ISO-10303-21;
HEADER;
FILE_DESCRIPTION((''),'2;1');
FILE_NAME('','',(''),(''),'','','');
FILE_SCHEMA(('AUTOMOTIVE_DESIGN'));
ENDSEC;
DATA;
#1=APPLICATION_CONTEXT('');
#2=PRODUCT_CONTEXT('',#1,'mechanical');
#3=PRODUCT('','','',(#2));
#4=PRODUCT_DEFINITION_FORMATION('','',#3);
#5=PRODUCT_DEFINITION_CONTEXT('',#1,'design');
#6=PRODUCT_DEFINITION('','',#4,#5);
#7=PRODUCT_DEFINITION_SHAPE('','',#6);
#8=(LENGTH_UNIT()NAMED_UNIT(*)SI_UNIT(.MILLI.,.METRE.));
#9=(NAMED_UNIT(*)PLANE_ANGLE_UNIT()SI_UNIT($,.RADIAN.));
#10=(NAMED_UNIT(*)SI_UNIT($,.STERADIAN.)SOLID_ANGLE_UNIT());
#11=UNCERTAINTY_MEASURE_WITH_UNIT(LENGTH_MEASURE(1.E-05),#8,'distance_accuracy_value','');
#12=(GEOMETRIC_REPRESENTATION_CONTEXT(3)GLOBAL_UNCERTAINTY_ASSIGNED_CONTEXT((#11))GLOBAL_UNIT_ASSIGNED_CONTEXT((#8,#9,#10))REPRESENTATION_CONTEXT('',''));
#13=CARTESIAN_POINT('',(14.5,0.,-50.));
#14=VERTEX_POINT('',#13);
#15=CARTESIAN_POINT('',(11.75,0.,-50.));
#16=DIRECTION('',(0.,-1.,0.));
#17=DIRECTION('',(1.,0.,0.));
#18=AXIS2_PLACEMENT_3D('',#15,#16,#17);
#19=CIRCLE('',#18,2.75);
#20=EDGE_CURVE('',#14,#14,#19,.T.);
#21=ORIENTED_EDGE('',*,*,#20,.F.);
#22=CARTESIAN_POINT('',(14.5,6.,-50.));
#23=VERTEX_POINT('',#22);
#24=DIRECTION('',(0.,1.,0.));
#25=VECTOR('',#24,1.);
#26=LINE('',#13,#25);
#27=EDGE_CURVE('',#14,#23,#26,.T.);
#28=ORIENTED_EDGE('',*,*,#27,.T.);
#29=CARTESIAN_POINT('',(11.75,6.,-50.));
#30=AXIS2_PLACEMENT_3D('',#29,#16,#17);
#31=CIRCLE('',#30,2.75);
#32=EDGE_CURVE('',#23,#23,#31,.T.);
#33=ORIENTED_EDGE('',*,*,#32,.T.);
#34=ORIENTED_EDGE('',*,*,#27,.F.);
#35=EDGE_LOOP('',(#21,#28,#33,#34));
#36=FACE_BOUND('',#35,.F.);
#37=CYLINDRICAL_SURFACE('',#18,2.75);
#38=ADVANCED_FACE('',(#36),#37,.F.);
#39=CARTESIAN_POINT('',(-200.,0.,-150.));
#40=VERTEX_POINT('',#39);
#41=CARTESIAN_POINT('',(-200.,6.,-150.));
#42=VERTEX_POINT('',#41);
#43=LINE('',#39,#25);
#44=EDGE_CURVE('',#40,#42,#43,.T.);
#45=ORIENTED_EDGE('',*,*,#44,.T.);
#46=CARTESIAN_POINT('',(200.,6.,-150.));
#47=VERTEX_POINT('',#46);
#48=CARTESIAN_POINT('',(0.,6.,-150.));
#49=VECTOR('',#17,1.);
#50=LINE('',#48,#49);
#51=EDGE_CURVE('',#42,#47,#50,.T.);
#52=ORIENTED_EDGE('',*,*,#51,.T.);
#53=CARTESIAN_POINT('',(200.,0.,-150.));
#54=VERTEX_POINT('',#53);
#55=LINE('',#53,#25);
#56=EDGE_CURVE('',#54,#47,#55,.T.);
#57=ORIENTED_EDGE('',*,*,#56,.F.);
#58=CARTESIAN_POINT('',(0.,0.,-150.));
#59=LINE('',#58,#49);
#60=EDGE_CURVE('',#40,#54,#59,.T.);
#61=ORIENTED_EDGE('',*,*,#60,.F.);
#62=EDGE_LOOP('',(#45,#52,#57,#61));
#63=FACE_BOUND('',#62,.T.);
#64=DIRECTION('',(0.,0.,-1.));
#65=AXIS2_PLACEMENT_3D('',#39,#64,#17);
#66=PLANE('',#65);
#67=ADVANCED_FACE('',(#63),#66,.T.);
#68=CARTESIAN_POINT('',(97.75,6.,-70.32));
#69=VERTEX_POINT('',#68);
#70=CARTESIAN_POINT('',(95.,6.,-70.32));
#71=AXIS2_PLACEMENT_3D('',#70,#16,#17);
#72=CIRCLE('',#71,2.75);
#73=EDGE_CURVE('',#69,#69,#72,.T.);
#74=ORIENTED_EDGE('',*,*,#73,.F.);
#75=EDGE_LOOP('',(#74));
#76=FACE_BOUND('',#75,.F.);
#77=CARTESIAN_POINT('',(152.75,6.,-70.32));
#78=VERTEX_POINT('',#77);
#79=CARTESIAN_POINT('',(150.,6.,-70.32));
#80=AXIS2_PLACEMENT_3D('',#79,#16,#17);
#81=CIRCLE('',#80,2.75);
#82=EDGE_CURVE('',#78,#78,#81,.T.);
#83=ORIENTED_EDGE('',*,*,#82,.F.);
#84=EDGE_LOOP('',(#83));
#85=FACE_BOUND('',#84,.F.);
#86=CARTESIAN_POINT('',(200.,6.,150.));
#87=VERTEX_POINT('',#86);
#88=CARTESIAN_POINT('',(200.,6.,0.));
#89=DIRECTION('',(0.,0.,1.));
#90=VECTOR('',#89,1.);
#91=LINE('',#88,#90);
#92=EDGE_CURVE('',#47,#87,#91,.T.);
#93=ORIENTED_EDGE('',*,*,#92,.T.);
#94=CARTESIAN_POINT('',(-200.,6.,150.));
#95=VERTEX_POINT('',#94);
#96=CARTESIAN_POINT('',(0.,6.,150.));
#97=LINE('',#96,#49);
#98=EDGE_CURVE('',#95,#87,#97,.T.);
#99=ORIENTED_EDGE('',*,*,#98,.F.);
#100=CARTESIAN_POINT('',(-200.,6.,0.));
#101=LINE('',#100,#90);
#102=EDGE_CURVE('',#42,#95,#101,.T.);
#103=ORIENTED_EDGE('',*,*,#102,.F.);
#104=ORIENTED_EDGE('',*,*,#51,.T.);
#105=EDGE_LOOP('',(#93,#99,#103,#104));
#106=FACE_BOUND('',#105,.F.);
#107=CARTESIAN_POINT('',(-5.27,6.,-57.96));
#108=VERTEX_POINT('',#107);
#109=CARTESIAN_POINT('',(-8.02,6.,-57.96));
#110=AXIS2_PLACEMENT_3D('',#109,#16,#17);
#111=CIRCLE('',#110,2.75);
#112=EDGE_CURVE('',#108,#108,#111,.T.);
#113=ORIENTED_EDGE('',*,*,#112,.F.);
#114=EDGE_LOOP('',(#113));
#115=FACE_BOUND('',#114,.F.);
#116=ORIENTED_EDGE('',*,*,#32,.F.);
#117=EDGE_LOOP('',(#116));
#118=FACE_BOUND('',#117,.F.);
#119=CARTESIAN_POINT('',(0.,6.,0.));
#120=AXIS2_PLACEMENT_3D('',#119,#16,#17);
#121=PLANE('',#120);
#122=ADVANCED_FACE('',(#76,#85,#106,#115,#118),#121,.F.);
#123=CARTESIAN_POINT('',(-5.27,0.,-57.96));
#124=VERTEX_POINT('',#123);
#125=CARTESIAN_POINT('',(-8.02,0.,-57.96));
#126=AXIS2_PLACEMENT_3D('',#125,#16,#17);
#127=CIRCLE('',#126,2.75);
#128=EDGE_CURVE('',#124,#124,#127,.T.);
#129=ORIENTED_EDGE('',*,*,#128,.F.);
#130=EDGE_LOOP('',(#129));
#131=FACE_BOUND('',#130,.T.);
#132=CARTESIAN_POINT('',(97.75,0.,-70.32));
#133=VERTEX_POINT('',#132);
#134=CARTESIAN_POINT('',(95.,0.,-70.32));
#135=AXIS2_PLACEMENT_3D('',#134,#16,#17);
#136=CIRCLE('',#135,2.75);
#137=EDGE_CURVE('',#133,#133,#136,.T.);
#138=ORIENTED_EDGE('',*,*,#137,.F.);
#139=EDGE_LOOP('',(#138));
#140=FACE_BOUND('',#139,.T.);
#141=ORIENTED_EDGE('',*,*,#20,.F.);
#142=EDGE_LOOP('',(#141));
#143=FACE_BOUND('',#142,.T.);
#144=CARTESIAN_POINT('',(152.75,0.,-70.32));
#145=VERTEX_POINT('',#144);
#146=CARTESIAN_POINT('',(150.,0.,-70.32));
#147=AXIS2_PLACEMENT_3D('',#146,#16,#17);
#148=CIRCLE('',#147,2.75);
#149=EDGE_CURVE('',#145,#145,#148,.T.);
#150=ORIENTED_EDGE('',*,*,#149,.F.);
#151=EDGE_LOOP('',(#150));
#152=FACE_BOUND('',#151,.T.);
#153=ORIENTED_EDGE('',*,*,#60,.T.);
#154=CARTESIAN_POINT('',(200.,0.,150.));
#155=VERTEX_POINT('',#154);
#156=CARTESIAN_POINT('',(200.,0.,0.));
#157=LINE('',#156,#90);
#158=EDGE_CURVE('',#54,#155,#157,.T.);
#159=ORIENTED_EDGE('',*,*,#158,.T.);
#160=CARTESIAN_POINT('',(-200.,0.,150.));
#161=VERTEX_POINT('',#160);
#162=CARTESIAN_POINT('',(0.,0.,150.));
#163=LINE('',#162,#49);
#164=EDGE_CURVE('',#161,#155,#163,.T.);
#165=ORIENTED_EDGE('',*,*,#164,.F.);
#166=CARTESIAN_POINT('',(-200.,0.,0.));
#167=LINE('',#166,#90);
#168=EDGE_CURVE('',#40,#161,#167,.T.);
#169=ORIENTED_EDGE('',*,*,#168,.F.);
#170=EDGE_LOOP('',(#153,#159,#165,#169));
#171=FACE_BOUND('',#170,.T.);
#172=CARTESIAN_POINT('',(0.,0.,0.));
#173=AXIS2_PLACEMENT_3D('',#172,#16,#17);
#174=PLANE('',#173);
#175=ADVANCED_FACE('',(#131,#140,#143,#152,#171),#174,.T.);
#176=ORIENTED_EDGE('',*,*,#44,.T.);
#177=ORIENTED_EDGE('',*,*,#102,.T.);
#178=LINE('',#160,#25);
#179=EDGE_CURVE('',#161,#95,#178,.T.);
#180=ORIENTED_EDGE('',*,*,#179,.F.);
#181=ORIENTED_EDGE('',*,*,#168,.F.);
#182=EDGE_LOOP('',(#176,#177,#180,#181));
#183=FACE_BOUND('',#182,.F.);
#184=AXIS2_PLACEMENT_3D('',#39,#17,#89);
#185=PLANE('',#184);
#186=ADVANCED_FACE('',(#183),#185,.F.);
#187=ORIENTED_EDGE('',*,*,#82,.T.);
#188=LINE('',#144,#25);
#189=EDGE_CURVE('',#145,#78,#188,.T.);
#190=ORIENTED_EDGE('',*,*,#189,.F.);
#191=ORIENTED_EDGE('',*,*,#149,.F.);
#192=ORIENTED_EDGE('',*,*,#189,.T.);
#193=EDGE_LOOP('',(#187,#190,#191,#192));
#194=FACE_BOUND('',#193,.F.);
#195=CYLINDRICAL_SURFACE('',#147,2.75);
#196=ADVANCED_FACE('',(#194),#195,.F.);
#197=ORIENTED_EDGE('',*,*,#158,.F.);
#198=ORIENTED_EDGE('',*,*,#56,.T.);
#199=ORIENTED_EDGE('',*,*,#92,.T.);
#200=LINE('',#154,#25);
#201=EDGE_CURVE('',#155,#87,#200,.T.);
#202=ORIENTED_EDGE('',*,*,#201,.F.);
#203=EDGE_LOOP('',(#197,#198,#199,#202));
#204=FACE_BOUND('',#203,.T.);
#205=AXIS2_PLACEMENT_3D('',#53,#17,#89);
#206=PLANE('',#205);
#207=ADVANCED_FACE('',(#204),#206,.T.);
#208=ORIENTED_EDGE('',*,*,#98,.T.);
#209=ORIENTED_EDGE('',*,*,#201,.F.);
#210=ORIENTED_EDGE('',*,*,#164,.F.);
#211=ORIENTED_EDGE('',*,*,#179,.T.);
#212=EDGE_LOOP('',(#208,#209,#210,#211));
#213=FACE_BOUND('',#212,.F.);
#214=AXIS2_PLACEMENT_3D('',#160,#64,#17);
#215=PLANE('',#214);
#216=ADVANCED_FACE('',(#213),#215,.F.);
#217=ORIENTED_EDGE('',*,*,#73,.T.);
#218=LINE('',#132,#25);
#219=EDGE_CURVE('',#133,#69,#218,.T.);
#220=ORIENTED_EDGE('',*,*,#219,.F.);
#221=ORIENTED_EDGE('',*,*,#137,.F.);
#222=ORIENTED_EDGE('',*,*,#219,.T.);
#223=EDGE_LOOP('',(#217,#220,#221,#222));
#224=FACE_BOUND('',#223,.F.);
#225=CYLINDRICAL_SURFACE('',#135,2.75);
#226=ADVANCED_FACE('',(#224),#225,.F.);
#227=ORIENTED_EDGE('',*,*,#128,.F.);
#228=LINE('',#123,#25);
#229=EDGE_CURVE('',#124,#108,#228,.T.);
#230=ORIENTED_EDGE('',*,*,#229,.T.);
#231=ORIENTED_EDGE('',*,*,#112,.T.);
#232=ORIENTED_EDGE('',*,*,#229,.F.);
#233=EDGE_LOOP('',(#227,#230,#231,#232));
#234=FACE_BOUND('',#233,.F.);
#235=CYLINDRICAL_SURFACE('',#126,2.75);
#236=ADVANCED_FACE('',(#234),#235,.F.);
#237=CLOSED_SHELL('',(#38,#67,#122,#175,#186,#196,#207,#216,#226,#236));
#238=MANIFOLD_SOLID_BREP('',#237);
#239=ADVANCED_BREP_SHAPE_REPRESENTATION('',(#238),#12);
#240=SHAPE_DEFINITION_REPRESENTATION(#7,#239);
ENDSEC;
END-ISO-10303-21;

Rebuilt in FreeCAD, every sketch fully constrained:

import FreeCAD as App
import Part
import Sketcher
from FreeCAD import Vector

doc = App.newDocument("Part")
params = doc.addObject("Spreadsheet::Sheet", "Params")
for row, (alias, value) in enumerate([
    ("sketch1_width", "400 mm"),
    ("sketch1_height", "300 mm"),
    ("pad1_length", "6 mm"),
    ("sketch2_diameter", "5.5 mm"),
], start=1):
    params.set(f"A{row}", alias)
    params.set(f"B{row}", "=" + value)
    params.setAlias(f"B{row}", alias)

body = doc.addObject("PartDesign::Body", "Body")

sketch1 = body.newObject("Sketcher::SketchObject", "Sketch")
sketch1.AttachmentSupport = (doc.getObject("XZ_Plane"), [""])
sketch1.MapMode = "FlatFace"
sketch1.addGeometry([
    Part.LineSegment(Vector(-200, 150, 0), Vector(-200, -150, 0)),
    Part.LineSegment(Vector(-200, -150, 0), Vector(200, -150, 0)),
    Part.LineSegment(Vector(200, -150, 0), Vector(200, 150, 0)),
    Part.LineSegment(Vector(200, 150, 0), Vector(-200, 150, 0)),
], False)
sketch1.addConstraint([
    Sketcher.Constraint("Coincident", 0, 2, 1, 1),
    Sketcher.Constraint("Coincident", 1, 2, 2, 1),
    Sketcher.Constraint("Coincident", 2, 2, 3, 1),
    Sketcher.Constraint("Coincident", 3, 2, 0, 1),
    Sketcher.Constraint("Vertical", 0),
    Sketcher.Constraint("Horizontal", 1),
    Sketcher.Constraint("Vertical", 2),
    Sketcher.Constraint("Horizontal", 3),
    Sketcher.Constraint("Symmetric", 0, 2, 2, 2, -1, 1),
    Sketcher.Constraint("DistanceX", 1, 1, 1, 2, 400.0),
    Sketcher.Constraint("DistanceY", 0, 2, 0, 1, 300.0),
])
sketch1.setExpression("Constraints[9]", "Params.sketch1_width")
sketch1.setExpression("Constraints[10]", "Params.sketch1_height")
pad1 = body.newObject("PartDesign::Pad", "Pad")
pad1.Profile = sketch1
pad1.setExpression("Length", "Params.pad1_length")
pad1.Reversed = True

sketch2 = body.newObject("Sketcher::SketchObject", "Sketch001")
sketch2.AttachmentSupport = (doc.getObject("XZ_Plane"), [""])
sketch2.MapMode = "FlatFace"
sketch2.addGeometry([
    Part.Circle(Vector(150, -70.3, 0), Vector(0, 0, 1), 2.8),
    Part.Circle(Vector(95, -70.3, 0), Vector(0, 0, 1), 2.8),
    Part.Circle(Vector(11.8, -50, 0), Vector(0, 0, 1), 2.8),
    Part.Circle(Vector(-8, -58, 0), Vector(0, 0, 1), 2.8),
], False)
sketch2.addConstraint([
    Sketcher.Constraint("Equal", 0, 1),
    Sketcher.Constraint("Equal", 1, 2),
    Sketcher.Constraint("Equal", 2, 3),
    Sketcher.Constraint("Horizontal", 0, 3, 1, 3),
    Sketcher.Constraint("Diameter", 0, 5.5),
    Sketcher.Constraint("DistanceX", -1, 1, 0, 3, 150.0),
    Sketcher.Constraint("DistanceX", -1, 1, 1, 3, 95.0),
    Sketcher.Constraint("DistanceY", 2, 3, -1, 1, 50.0),
    Sketcher.Constraint("DistanceY", 0, 3, -1, 1, 70.32),
    Sketcher.Constraint("DistanceX", -1, 1, 2, 3, 11.75),
    Sketcher.Constraint("DistanceX", 3, 3, -1, 1, 8.02),
    Sketcher.Constraint("DistanceY", 3, 3, -1, 1, 57.96),
])
sketch2.setExpression("Constraints[4]", "Params.sketch2_diameter")
pocket1 = body.newObject("PartDesign::Pocket", "Pocket")
pocket1.Profile = sketch2
pocket1.Type = "ThroughAll"

doc.recompute()
